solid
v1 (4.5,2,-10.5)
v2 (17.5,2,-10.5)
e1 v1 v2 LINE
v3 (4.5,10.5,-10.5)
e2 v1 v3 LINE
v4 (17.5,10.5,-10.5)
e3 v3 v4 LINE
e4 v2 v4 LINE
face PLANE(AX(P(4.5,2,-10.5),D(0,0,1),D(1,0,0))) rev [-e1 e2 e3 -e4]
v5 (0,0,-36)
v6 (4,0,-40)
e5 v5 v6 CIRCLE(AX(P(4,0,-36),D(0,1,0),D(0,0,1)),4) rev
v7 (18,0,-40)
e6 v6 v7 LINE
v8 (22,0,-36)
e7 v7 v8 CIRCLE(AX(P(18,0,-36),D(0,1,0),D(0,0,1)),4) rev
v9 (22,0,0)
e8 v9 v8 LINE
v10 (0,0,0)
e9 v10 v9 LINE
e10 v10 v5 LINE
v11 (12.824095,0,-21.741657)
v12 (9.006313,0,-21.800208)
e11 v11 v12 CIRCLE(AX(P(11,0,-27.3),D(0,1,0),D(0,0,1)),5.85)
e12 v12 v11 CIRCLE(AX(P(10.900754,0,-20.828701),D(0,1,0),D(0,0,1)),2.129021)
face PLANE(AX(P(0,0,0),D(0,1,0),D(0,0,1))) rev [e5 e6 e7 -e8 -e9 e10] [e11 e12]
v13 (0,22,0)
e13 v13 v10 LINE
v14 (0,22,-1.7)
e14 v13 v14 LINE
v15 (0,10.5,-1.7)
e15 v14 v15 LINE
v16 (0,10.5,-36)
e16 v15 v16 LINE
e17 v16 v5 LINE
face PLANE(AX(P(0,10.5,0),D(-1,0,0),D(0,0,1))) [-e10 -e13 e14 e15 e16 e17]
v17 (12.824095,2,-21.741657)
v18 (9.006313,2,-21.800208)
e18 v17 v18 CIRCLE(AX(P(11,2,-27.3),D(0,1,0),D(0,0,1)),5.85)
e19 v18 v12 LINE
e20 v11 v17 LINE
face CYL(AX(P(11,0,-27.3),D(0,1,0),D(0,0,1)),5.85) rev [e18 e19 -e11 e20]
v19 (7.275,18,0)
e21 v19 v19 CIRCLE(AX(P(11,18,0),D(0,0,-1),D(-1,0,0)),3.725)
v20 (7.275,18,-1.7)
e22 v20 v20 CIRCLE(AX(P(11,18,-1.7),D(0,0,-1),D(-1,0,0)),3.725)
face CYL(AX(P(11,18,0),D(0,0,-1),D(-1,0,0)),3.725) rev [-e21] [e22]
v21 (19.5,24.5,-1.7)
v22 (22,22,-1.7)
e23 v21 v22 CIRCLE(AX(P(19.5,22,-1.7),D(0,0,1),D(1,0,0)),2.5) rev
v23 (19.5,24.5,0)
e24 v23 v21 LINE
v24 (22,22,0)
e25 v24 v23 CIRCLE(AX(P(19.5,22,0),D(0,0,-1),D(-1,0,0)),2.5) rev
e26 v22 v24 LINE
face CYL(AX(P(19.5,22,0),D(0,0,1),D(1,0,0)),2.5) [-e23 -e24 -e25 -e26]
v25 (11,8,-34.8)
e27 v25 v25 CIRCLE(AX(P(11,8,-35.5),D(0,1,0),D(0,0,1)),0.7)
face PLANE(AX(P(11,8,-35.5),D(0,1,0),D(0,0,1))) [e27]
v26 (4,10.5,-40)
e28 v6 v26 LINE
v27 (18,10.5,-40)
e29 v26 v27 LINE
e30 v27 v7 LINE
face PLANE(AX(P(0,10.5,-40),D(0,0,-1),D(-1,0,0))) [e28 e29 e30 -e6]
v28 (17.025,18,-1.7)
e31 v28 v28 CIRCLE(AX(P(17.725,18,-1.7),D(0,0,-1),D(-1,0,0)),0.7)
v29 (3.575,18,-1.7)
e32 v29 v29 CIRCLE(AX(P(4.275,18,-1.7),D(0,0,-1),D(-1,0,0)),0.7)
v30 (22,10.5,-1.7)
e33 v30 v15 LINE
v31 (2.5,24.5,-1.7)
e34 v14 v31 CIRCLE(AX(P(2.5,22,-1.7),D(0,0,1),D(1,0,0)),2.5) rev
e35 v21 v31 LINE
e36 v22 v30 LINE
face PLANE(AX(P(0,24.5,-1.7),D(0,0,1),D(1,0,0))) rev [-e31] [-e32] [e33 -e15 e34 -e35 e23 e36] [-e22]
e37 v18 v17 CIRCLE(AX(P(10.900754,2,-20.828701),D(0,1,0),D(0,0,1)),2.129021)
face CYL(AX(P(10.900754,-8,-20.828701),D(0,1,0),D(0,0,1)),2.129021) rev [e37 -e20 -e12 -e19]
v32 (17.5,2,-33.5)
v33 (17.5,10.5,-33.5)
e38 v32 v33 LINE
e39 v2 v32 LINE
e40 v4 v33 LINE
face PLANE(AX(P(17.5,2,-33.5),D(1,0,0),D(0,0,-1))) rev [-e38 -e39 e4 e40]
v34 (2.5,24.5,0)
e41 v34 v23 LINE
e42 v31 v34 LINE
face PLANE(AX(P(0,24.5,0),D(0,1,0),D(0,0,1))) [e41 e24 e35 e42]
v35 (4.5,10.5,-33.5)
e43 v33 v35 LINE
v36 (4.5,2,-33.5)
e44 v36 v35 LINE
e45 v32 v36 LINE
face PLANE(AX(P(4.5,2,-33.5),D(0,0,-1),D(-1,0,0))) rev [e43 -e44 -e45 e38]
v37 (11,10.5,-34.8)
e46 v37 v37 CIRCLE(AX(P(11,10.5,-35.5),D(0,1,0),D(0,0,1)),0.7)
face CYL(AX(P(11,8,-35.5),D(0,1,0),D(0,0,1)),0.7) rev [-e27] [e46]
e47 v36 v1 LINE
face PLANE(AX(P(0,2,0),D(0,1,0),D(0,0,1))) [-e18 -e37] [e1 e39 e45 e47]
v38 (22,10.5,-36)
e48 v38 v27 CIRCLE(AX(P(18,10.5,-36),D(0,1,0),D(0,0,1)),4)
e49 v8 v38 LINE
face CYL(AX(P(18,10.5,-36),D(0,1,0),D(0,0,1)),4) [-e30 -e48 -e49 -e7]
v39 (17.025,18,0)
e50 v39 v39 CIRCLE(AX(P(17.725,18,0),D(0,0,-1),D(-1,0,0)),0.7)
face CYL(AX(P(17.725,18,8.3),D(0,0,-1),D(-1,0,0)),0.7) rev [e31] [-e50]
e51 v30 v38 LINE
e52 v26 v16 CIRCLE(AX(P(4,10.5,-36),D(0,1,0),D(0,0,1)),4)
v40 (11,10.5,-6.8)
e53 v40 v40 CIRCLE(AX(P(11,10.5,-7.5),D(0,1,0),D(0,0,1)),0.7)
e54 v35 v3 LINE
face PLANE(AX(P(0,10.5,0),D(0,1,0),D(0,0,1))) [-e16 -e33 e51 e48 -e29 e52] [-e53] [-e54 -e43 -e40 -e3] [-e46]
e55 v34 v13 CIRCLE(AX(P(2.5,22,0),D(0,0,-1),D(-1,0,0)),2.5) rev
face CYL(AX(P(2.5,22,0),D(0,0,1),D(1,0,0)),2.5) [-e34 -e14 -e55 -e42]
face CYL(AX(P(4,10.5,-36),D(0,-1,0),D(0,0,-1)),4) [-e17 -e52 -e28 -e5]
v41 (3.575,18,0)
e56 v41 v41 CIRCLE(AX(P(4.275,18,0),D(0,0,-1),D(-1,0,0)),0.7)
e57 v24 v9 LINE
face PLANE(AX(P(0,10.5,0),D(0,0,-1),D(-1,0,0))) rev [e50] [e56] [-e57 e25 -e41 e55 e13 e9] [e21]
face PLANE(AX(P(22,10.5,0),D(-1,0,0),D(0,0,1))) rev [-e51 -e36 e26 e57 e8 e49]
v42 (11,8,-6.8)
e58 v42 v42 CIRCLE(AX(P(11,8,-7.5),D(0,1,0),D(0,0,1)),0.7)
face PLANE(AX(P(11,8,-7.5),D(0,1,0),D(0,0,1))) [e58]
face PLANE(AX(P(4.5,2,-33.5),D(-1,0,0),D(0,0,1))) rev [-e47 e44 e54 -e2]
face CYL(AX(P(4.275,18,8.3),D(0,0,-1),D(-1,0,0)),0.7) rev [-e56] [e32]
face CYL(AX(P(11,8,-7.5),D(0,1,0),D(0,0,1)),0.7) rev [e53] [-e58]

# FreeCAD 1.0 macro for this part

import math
import FreeCAD as App
import Part
import Sketcher


def edges_at(feature, points):
    """Names of the edges that pass closest to the given points."""
    edges = feature.Shape.Edges
    near = lambda p: min(range(len(edges)), key=lambda i: edges[i].distToShape(Part.Vertex(*p))[0])
    return sorted({f"Edge{near(p) + 1}" for p in points})


def add_polygon(sketch, points):
    """Adds a closed chain of lines whose ends are joined by coincident constraints."""
    first, n = sketch.GeometryCount, len(points)
    for a, b in zip(points, points[1:] + points[:1]):
        sketch.addGeometry(Part.LineSegment(App.Vector(*a, 0), App.Vector(*b, 0)), False)
    for i in range(n):
        sketch.addConstraint(Sketcher.Constraint("Coincident", first + i, 2, first + (i + 1) % n, 1))

doc = App.newDocument("Part")
body = doc.addObject("PartDesign::Body", "Body")

# Sketch on XZ plane
sketch1 = body.newObject("Sketcher::SketchObject", "Sketch")
sketch1.AttachmentSupport = (doc.getObject("XZ_Plane"), [""])
sketch1.MapMode = "FlatFace"
add_polygon(sketch1, [(0, -40), (0, 0), (22, 0), (22, -40)])  # lines 0-3
sketch1.addConstraint(Sketcher.Constraint("Vertical", 0))
sketch1.addConstraint(Sketcher.Constraint("Horizontal", 1))
sketch1.addConstraint(Sketcher.Constraint("Vertical", 2))
sketch1.addConstraint(Sketcher.Constraint("Horizontal", 3))
sketch1.addConstraint(Sketcher.Constraint("Coincident", 0, 2, -1, 1))
sketch1.addConstraint(Sketcher.Constraint("DistanceX", 1, 1, 1, 2, 22.0))
sketch1.addConstraint(Sketcher.Constraint("DistanceY", 0, 1, 0, 2, 40.0))
pad1 = body.newObject("PartDesign::Pad", "Pad")
pad1.Profile = sketch1
pad1.Length = 10.5
pad1.Reversed = True

# Sketch on XZ plane
sketch2 = body.newObject("Sketcher::SketchObject", "Sketch001")
sketch2.AttachmentSupport = (doc.getObject("XZ_Plane"), [""])
sketch2.MapMode = "FlatFace"
sketch2.AttachmentOffset = App.Placement(App.Vector(0, 0, -10.5), App.Rotation())
add_polygon(sketch2, [(4, -34), (4, -10), (18, -10), (18, -34)])  # lines 0-3
sketch2.addConstraint(Sketcher.Constraint("Vertical", 0))
sketch2.addConstraint(Sketcher.Constraint("Horizontal", 1))
sketch2.addConstraint(Sketcher.Constraint("Vertical", 2))
sketch2.addConstraint(Sketcher.Constraint("Horizontal", 3))
sketch2.addConstraint(Sketcher.Constraint("DistanceX", 1, 1, 1, 2, 13.0))
sketch2.addConstraint(Sketcher.Constraint("DistanceY", 0, 1, 0, 2, 23.0))
sketch2.addConstraint(Sketcher.Constraint("DistanceX", -1, 1, 0, 2, 4.5))
sketch2.addConstraint(Sketcher.Constraint("DistanceY", 0, 2, -1, 1, 10.5))
pocket1 = body.newObject("PartDesign::Pocket", "Pocket")
pocket1.Profile = sketch2
pocket1.Length = 8.5
pocket1.Reversed = True

# Sketch on XZ plane
sketch3 = body.newObject("Sketcher::SketchObject", "Sketch002")
sketch3.AttachmentSupport = (doc.getObject("XZ_Plane"), [""])
sketch3.MapMode = "FlatFace"
sketch3.AttachmentOffset = App.Placement(App.Vector(0, 0, -2), App.Rotation())
sketch3.addGeometry(Part.Circle(App.Vector(11, -27, 0), App.Vector(0, 0, 1), 6), False)
sketch3.addConstraint(Sketcher.Constraint("Diameter", 0, 11.7))
sketch3.addConstraint(Sketcher.Constraint("DistanceX", -1, 1, 0, 3, 11.0))
sketch3.addConstraint(Sketcher.Constraint("DistanceY", 0, 3, -1, 1, 27.3))
pocket2 = body.newObject("PartDesign::Pocket", "Pocket001")
pocket2.Profile = sketch3
pocket2.Type = "ThroughAll"
pocket2.Reversed = True

# Sketch on XZ plane
sketch4 = body.newObject("Sketcher::SketchObject", "Sketch003")
sketch4.AttachmentSupport = (doc.getObject("XZ_Plane"), [""])
sketch4.MapMode = "FlatFace"
sketch4.AttachmentOffset = App.Placement(App.Vector(0, 0, -10.5), App.Rotation())
add_polygon(sketch4, [(0, -1.7), (0, 0), (22, 0), (22, -1.7)])  # lines 0-3
sketch4.addConstraint(Sketcher.Constraint("Vertical", 0))
sketch4.addConstraint(Sketcher.Constraint("Horizontal", 1))
sketch4.addConstraint(Sketcher.Constraint("Vertical", 2))
sketch4.addConstraint(Sketcher.Constraint("Horizontal", 3))
sketch4.addConstraint(Sketcher.Constraint("Coincident", 0, 2, -1, 1))
sketch4.addConstraint(Sketcher.Constraint("DistanceX", 1, 1, 1, 2, 22.0))
sketch4.addConstraint(Sketcher.Constraint("DistanceY", 0, 1, 0, 2, 1.7))
pad2 = body.newObject("PartDesign::Pad", "Pad001")
pad2.Profile = sketch4
pad2.Length = 14
pad2.Reversed = True

# Sketch on XY plane
sketch5 = body.newObject("Sketcher::SketchObject", "Sketch004")
sketch5.AttachmentSupport = (doc.getObject("XY_Plane"), [""])
sketch5.MapMode = "FlatFace"
sketch5.AttachmentOffset = App.Placement(App.Vector(0, 0, -1.7), App.Rotation())
sketch5.addGeometry(Part.Circle(App.Vector(11, 18, 0), App.Vector(0, 0, 1), 3.7), False)
sketch5.addConstraint(Sketcher.Constraint("Diameter", 0, 7.45))
sketch5.addConstraint(Sketcher.Constraint("DistanceX", -1, 1, 0, 3, 11.0))
sketch5.addConstraint(Sketcher.Constraint("DistanceY", -1, 1, 0, 3, 18.0))
pocket3 = body.newObject("PartDesign::Pocket", "Pocket002")
pocket3.Profile = sketch5
pocket3.Type = "ThroughAll"
pocket3.Reversed = True

# Sketch on XY plane
sketch6 = body.newObject("Sketcher::SketchObject", "Sketch005")
sketch6.AttachmentSupport = (doc.getObject("XY_Plane"), [""])
sketch6.MapMode = "FlatFace"
sketch6.AttachmentOffset = App.Placement(App.Vector(0, 0, -1.7), App.Rotation())
sketch6.addGeometry(Part.Circle(App.Vector(11, 18, 0), App.Vector(0, 0, 1), 3.7), False)
sketch6.addGeometry(Part.Circle(App.Vector(17.7, 18, 0), App.Vector(0, 0, 1), 0.7), False)
sketch6.addGeometry(Part.Circle(App.Vector(4.3, 18, 0), App.Vector(0, 0, 1), 0.7), False)
sketch6.addConstraint(Sketcher.Constraint("Equal", 1, 2))
sketch6.addConstraint(Sketcher.Constraint("Horizontal", 0, 3, 1, 3))
sketch6.addConstraint(Sketcher.Constraint("Horizontal", 1, 3, 2, 3))
sketch6.addConstraint(Sketcher.Constraint("Diameter", 1, 1.4))
sketch6.addConstraint(Sketcher.Constraint("Diameter", 0, 7.45))
sketch6.addConstraint(Sketcher.Constraint("DistanceX", -1, 1, 0, 3, 11.0))
sketch6.addConstraint(Sketcher.Constraint("DistanceY", -1, 1, 0, 3, 18.0))
sketch6.addConstraint(Sketcher.Constraint("DistanceX", 2, 3, 1, 3, 13.45))
sketch6.addConstraint(Sketcher.Constraint("DistanceX", -1, 1, 1, 3, 17.725))
pocket4 = body.newObject("PartDesign::Pocket", "Pocket003")
pocket4.Profile = sketch6
pocket4.Length = 10
pocket4.Reversed = True

# Sketch on XZ plane
sketch7 = body.newObject("Sketcher::SketchObject", "Sketch006")
sketch7.AttachmentSupport = (doc.getObject("XZ_Plane"), [""])
sketch7.MapMode = "FlatFace"
sketch7.AttachmentOffset = App.Placement(App.Vector(0, 0, -10.5), App.Rotation())
sketch7.addGeometry(Part.Circle(App.Vector(11, -35.5, 0), App.Vector(0, 0, 1), 0.7), False)
sketch7.addGeometry(Part.Circle(App.Vector(11, -7.5, 0), App.Vector(0, 0, 1), 0.7), False)
sketch7.addConstraint(Sketcher.Constraint("Equal", 0, 1))
sketch7.addConstraint(Sketcher.Constraint("Vertical", 0, 3, 1, 3))
sketch7.addConstraint(Sketcher.Constraint("Diameter", 0, 1.4))
sketch7.addConstraint(Sketcher.Constraint("DistanceX", -1, 1, 0, 3, 11.0))
sketch7.addConstraint(Sketcher.Constraint("DistanceY", 0, 3, 1, 3, 28.0))
sketch7.addConstraint(Sketcher.Constraint("DistanceY", 0, 3, -1, 1, 35.5))
pocket5 = body.newObject("PartDesign::Pocket", "Pocket004")
pocket5.Profile = sketch7
pocket5.Length = 2.5
pocket5.Reversed = True
doc.recompute()

fillet = body.newObject("PartDesign::Fillet", "Fillet")
fillet.Base = (pocket5, edges_at(pocket5, [(0, 5.25, -40), (22, 5.25, -40)]))
fillet.Radius = 4
doc.recompute()

fillet2 = body.newObject("PartDesign::Fillet", "Fillet001")
fillet2.Base = (fillet, edges_at(fillet, [(0, 24.5, -0.85), (22, 24.5, -0.85)]))
fillet2.Radius = 2.5

# Sketch on XZ plane
sketch8 = body.newObject("Sketcher::SketchObject", "Sketch007")
sketch8.AttachmentSupport = (doc.getObject("XZ_Plane"), [""])
sketch8.MapMode = "FlatFace"
sketch8.AttachmentOffset = App.Placement(App.Vector(0, 0, -2), App.Rotation())
sketch8.addGeometry(Part.ArcOfCircle(Part.Circle(App.Vector(10.9, -20.8, 0), App.Vector(0, 0, 1), 2.1), math.radians(-27), math.radians(208)), False)
sketch8.addGeometry(Part.ArcOfCircle(Part.Circle(App.Vector(11, -27.3, 0), App.Vector(0, 0, 1), 5.8), math.radians(72), math.radians(110)), False)
sketch8.addConstraint(Sketcher.Constraint("Coincident", 0, 1, 1, 1))
sketch8.addConstraint(Sketcher.Constraint("Coincident", 1, 2, 0, 2))
sketch8.addConstraint(Sketcher.Constraint("Radius", 0, 2.129021))
sketch8.addConstraint(Sketcher.Constraint("Radius", 1, 5.837846))
sketch8.addConstraint(Sketcher.Constraint("DistanceY", 0, 3, -1, 1, 20.828701))
sketch8.addConstraint(Sketcher.Constraint("DistanceX", -1, 1, 1, 2, 9.023699))
sketch8.addConstraint(Sketcher.Constraint("DistanceX", 1, 3, 0, 1, 1.817798))
sketch8.addConstraint(Sketcher.Constraint("DistanceY", 1, 2, 0, 1, 0.0493))
pocket6 = body.newObject("PartDesign::Pocket", "Pocket005")
pocket6.Profile = sketch8
pocket6.Length = 10
pocket6.Reversed = True

doc.recompute()
